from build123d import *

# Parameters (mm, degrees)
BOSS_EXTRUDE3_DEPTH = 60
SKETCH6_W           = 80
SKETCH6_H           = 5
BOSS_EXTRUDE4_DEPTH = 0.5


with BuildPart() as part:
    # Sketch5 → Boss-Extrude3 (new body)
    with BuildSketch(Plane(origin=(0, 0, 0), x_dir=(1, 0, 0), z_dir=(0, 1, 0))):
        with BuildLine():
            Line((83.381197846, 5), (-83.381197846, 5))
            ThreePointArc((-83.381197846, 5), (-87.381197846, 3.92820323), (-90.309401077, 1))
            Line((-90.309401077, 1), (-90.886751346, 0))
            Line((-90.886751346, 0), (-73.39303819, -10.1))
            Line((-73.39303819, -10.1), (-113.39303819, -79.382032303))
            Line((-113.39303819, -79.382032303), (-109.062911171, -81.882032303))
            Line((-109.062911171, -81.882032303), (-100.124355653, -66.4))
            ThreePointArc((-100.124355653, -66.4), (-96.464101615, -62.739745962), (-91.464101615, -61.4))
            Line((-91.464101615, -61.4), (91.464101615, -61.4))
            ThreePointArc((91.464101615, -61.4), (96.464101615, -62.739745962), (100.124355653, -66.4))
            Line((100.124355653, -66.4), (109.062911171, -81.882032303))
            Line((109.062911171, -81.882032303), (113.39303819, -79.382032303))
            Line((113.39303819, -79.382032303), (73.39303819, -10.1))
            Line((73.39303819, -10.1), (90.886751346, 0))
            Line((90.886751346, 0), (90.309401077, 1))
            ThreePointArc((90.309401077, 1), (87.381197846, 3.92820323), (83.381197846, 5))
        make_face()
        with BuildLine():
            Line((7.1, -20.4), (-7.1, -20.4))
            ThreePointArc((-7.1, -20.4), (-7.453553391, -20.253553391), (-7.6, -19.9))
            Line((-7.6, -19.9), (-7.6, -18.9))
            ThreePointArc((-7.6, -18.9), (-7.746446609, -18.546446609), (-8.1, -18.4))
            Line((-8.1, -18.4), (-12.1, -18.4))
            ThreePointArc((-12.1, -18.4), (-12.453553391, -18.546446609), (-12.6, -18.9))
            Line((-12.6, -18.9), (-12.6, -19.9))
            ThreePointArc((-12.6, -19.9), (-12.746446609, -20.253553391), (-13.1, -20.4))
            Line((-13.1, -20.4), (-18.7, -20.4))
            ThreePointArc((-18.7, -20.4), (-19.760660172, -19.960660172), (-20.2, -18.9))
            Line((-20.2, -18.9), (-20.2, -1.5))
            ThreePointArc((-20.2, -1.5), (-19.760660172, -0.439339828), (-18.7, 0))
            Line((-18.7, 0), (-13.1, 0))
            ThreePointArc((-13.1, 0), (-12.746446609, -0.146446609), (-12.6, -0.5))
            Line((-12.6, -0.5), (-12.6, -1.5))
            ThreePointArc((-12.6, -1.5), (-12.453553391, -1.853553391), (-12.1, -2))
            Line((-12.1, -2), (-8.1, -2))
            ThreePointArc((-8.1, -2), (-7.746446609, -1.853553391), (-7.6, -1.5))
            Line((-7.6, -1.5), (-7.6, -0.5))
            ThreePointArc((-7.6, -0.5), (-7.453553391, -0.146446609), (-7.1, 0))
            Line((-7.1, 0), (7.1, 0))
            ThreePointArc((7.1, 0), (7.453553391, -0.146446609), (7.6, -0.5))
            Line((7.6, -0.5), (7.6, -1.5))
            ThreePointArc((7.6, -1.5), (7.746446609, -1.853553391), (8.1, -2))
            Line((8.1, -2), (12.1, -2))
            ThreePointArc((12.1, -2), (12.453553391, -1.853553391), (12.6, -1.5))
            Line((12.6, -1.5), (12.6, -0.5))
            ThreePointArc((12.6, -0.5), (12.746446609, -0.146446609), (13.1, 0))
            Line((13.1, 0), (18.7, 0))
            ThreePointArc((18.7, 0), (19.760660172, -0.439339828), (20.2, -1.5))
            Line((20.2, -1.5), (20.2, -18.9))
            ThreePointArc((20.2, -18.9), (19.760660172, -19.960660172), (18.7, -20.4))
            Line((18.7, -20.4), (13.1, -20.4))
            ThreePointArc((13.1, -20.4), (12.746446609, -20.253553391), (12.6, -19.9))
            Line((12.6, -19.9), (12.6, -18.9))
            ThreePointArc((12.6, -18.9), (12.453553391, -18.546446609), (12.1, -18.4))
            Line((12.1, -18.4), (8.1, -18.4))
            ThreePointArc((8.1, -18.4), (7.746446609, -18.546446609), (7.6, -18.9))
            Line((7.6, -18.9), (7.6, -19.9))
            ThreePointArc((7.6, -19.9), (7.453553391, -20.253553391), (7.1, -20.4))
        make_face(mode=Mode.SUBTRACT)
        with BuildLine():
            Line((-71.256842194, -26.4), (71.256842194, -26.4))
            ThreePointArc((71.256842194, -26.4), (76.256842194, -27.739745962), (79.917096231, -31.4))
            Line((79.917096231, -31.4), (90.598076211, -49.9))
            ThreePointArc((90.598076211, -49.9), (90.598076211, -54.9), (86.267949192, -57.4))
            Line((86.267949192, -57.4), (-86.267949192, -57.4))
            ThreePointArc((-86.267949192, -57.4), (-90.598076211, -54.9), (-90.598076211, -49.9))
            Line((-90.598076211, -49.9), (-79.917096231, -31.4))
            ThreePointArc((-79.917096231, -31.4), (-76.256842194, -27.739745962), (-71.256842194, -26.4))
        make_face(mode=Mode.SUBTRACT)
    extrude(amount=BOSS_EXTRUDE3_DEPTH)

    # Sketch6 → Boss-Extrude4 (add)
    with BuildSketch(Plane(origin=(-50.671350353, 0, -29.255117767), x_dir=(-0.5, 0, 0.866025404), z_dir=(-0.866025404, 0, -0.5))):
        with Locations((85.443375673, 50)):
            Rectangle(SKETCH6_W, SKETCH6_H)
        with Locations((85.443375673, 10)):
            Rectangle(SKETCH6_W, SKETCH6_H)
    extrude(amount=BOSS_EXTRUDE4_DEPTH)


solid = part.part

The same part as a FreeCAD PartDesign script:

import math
import FreeCAD as App
import Part
import Sketcher

V = App.Vector
Q = App.Units.Quantity

doc = App.newDocument("Part")
body = doc.addObject("PartDesign::Body", "Body")

# Sketch on XZ plane
sketch1 = body.newObject("Sketcher::SketchObject", "Sketch")
sketch1.AttachmentSupport = (doc.getObject("XZ_Plane"), [""])
sketch1.MapMode = "FlatFace"
sketch1.addGeometry(Part.LineSegment(V(83.38, -5, 0), V(-83.38, -5, 0)), False)
sketch1.addGeometry(Part.ArcOfCircle(Part.Circle(V(-83.38, 3, 0), V(0, 0, 1), 8), math.radians(-150), math.radians(-90)), False)
sketch1.addGeometry(Part.LineSegment(V(-90.31, -1, 0), V(-90.89, 0, 0)), False)
sketch1.addGeometry(Part.LineSegment(V(-90.89, 0, 0), V(-73.39, 10.1, 0)), False)
sketch1.addGeometry(Part.LineSegment(V(-73.39, 10.1, 0), V(-113.39, 79.38, 0)), False)
sketch1.addGeometry(Part.LineSegment(V(-113.39, 79.38, 0), V(-109.06, 81.88, 0)), False)
sketch1.addGeometry(Part.LineSegment(V(-109.06, 81.88, 0), V(-100.12, 66.4, 0)), False)
sketch1.addGeometry(Part.ArcOfCircle(Part.Circle(V(-91.46, 71.4, 0), V(0, 0, 1), 10), math.radians(-150), math.radians(-90)), False)
sketch1.addGeometry(Part.LineSegment(V(-91.46, 61.4, 0), V(91.46, 61.4, 0)), False)
sketch1.addGeometry(Part.ArcOfCircle(Part.Circle(V(91.46, 71.4, 0), V(0, 0, 1), 10), math.radians(-90), math.radians(-30)), False)
sketch1.addGeometry(Part.LineSegment(V(100.12, 66.4, 0), V(109.06, 81.88, 0)), False)
sketch1.addGeometry(Part.LineSegment(V(109.06, 81.88, 0), V(113.39, 79.38, 0)), False)
sketch1.addGeometry(Part.LineSegment(V(113.39, 79.38, 0), V(73.39, 10.1, 0)), False)
sketch1.addGeometry(Part.LineSegment(V(73.39, 10.1, 0), V(90.89, 0, 0)), False)
sketch1.addGeometry(Part.LineSegment(V(90.89, 0, 0), V(90.31, -1, 0)), False)
sketch1.addGeometry(Part.ArcOfCircle(Part.Circle(V(83.38, 3, 0), V(0, 0, 1), 8), math.radians(-90), math.radians(-30)), False)
sketch1.addGeometry(Part.ArcOfCircle(Part.Circle(V(-71.26, 36.4, 0), V(0, 0, 1), 10), math.radians(-150), math.radians(-90)), False)
sketch1.addGeometry(Part.LineSegment(V(-71.26, 26.4, 0), V(71.26, 26.4, 0)), False)
sketch1.addGeometry(Part.ArcOfCircle(Part.Circle(V(71.26, 36.4, 0), V(0, 0, 1), 10), math.radians(-90), math.radians(-30)), False)
sketch1.addGeometry(Part.LineSegment(V(79.92, 31.4, 0), V(90.6, 49.9, 0)), False)
sketch1.addGeometry(Part.ArcOfCircle(Part.Circle(V(86.27, 52.4, 0), V(0, 0, 1), 5), math.radians(-30), math.radians(90)), False)
sketch1.addGeometry(Part.LineSegment(V(86.27, 57.4, 0), V(-86.27, 57.4, 0)), False)
sketch1.addGeometry(Part.ArcOfCircle(Part.Circle(V(-86.27, 52.4, 0), V(0, 0, 1), 5), math.radians(90), math.radians(210)), False)
sketch1.addGeometry(Part.LineSegment(V(-90.6, 49.9, 0), V(-79.92, 31.4, 0)), False)
sketch1.addGeometry(Part.ArcOfCircle(Part.Circle(V(7.1, 19.9, 0), V(0, 0, 1), 0.5), math.radians(0), math.radians(90)), False)
sketch1.addGeometry(Part.LineSegment(V(7.1, 20.4, 0), V(-7.1, 20.4, 0)), False)
sketch1.addGeometry(Part.ArcOfCircle(Part.Circle(V(-7.1, 19.9, 0), V(0, 0, 1), 0.5), math.radians(90), math.radians(180)), False)
sketch1.addGeometry(Part.LineSegment(V(-7.6, 19.9, 0), V(-7.6, 18.9, 0)), False)
sketch1.addGeometry(Part.ArcOfCircle(Part.Circle(V(-8.1, 18.9, 0), V(0, 0, 1), 0.5), math.radians(-90), math.radians(0)), False)
sketch1.addGeometry(Part.LineSegment(V(-8.1, 18.4, 0), V(-12.1, 18.4, 0)), False)
sketch1.addGeometry(Part.ArcOfCircle(Part.Circle(V(-12.1, 18.9, 0), V(0, 0, 1), 0.5), math.radians(180), math.radians(270)), False)
sketch1.addGeometry(Part.LineSegment(V(-12.6, 18.9, 0), V(-12.6, 19.9, 0)), False)
sketch1.addGeometry(Part.ArcOfCircle(Part.Circle(V(-13.1, 19.9, 0), V(0, 0, 1), 0.5), math.radians(0), math.radians(90)), False)
sketch1.addGeometry(Part.LineSegment(V(-13.1, 20.4, 0), V(-18.7, 20.4, 0)), False)
sketch1.addGeometry(Part.ArcOfCircle(Part.Circle(V(-18.7, 18.9, 0), V(0, 0, 1), 1.5), math.radians(90), math.radians(180)), False)
sketch1.addGeometry(Part.LineSegment(V(-20.2, 18.9, 0), V(-20.2, 1.5, 0)), False)
sketch1.addGeometry(Part.ArcOfCircle(Part.Circle(V(-18.7, 1.5, 0), V(0, 0, 1), 1.5), math.radians(180), math.radians(270)), False)
sketch1.addGeometry(Part.LineSegment(V(-18.7, 0, 0), V(-13.1, 0, 0)), False)
sketch1.addGeometry(Part.ArcOfCircle(Part.Circle(V(-13.1, 0.5, 0), V(0, 0, 1), 0.5), math.radians(-90), math.radians(0)), False)
sketch1.addGeometry(Part.LineSegment(V(-12.6, 0.5, 0), V(-12.6, 1.5, 0)), False)
sketch1.addGeometry(Part.ArcOfCircle(Part.Circle(V(-12.1, 1.5, 0), V(0, 0, 1), 0.5), math.radians(90), math.radians(180)), False)
sketch1.addGeometry(Part.LineSegment(V(-12.1, 2, 0), V(-8.1, 2, 0)), False)
sketch1.addGeometry(Part.ArcOfCircle(Part.Circle(V(-8.1, 1.5, 0), V(0, 0, 1), 0.5), math.radians(0), math.radians(90)), False)
sketch1.addGeometry(Part.LineSegment(V(-7.6, 1.5, 0), V(-7.6, 0.5, 0)), False)
sketch1.addGeometry(Part.ArcOfCircle(Part.Circle(V(-7.1, 0.5, 0), V(0, 0, 1), 0.5), math.radians(180), math.radians(270)), False)
sketch1.addGeometry(Part.LineSegment(V(-7.1, 0, 0), V(7.1, 0, 0)), False)
sketch1.addGeometry(Part.ArcOfCircle(Part.Circle(V(7.1, 0.5, 0), V(0, 0, 1), 0.5), math.radians(-90), math.radians(0)), False)
sketch1.addGeometry(Part.LineSegment(V(7.6, 0.5, 0), V(7.6, 1.5, 0)), False)
sketch1.addGeometry(Part.ArcOfCircle(Part.Circle(V(8.1, 1.5, 0), V(0, 0, 1), 0.5), math.radians(90), math.radians(180)), False)
sketch1.addGeometry(Part.LineSegment(V(8.1, 2, 0), V(12.1, 2, 0)), False)
sketch1.addGeometry(Part.ArcOfCircle(Part.Circle(V(12.1, 1.5, 0), V(0, 0, 1), 0.5), math.radians(0), math.radians(90)), False)
sketch1.addGeometry(Part.LineSegment(V(12.6, 1.5, 0), V(12.6, 0.5, 0)), False)
sketch1.addGeometry(Part.ArcOfCircle(Part.Circle(V(13.1, 0.5, 0), V(0, 0, 1), 0.5), math.radians(180), math.radians(270)), False)
sketch1.addGeometry(Part.LineSegment(V(13.1, 0, 0), V(18.7, 0, 0)), False)
sketch1.addGeometry(Part.ArcOfCircle(Part.Circle(V(18.7, 1.5, 0), V(0, 0, 1), 1.5), math.radians(-90), math.radians(0)), False)
sketch1.addGeometry(Part.LineSegment(V(20.2, 1.5, 0), V(20.2, 18.9, 0)), False)
sketch1.addGeometry(Part.ArcOfCircle(Part.Circle(V(18.7, 18.9, 0), V(0, 0, 1), 1.5), math.radians(0), math.radians(90)), False)
sketch1.addGeometry(Part.LineSegment(V(18.7, 20.4, 0), V(13.1, 20.4, 0)), False)
sketch1.addGeometry(Part.ArcOfCircle(Part.Circle(V(13.1, 19.9, 0), V(0, 0, 1), 0.5), math.radians(90), math.radians(180)), False)
sketch1.addGeometry(Part.LineSegment(V(12.6, 19.9, 0), V(12.6, 18.9, 0)), False)
sketch1.addGeometry(Part.ArcOfCircle(Part.Circle(V(12.1, 18.9, 0), V(0, 0, 1), 0.5), math.radians(-90), math.radians(0)), False)
sketch1.addGeometry(Part.LineSegment(V(12.1, 18.4, 0), V(8.1, 18.4, 0)), False)
sketch1.addGeometry(Part.ArcOfCircle(Part.Circle(V(8.1, 18.9, 0), V(0, 0, 1), 0.5), math.radians(180), math.radians(270)), False)
sketch1.addGeometry(Part.LineSegment(V(7.6, 18.9, 0), V(7.6, 19.9, 0)), False)
sketch1.addConstraint(Sketcher.Constraint("Tangent", 0, 2, 1, 2))
sketch1.addConstraint(Sketcher.Constraint("Tangent", 1, 1, 2, 1))
sketch1.addConstraint(Sketcher.Constraint("Coincident", 2, 2, 3, 1))
sketch1.addConstraint(Sketcher.Constraint("Coincident", 3, 2, 4, 1))
sketch1.addConstraint(Sketcher.Constraint("Coincident", 4, 2, 5, 1))
sketch1.addConstraint(Sketcher.Constraint("Coincident", 5, 2, 6, 1))
sketch1.addConstraint(Sketcher.Constraint("Tangent", 6, 2, 7, 1))
sketch1.addConstraint(Sketcher.Constraint("Tangent", 7, 2, 8, 1))
sketch1.addConstraint(Sketcher.Constraint("Tangent", 8, 2, 9, 1))
sketch1.addConstraint(Sketcher.Constraint("Tangent", 9, 2, 10, 1))
sketch1.addConstraint(Sketcher.Constraint("Coincident", 10, 2, 11, 1))
sketch1.addConstraint(Sketcher.Constraint("Coincident", 11, 2, 12, 1))
sketch1.addConstraint(Sketcher.Constraint("Coincident", 12, 2, 13, 1))
sketch1.addConstraint(Sketcher.Constraint("Coincident", 13, 2, 14, 1))
sketch1.addConstraint(Sketcher.Constraint("Tangent", 14, 2, 15, 2))
sketch1.addConstraint(Sketcher.Constraint("Tangent", 15, 1, 0, 1))
sketch1.addConstraint(Sketcher.Constraint("Tangent", 16, 2, 17, 1))
sketch1.addConstraint(Sketcher.Constraint("Tangent", 17, 2, 18, 1))
sketch1.addConstraint(Sketcher.Constraint("Tangent", 18, 2, 19, 1))
sketch1.addConstraint(Sketcher.Constraint("Tangent", 19, 2, 20, 1))
sketch1.addConstraint(Sketcher.Constraint("Tangent", 20, 2, 21, 1))
sketch1.addConstraint(Sketcher.Constraint("Tangent", 21, 2, 22, 1))
sketch1.addConstraint(Sketcher.Constraint("Tangent", 22, 2, 23, 1))
sketch1.addConstraint(Sketcher.Constraint("Tangent", 23, 2, 16, 1))
sketch1.addConstraint(Sketcher.Constraint("Tangent", 24, 2, 25, 1))
sketch1.addConstraint(Sketcher.Constraint("Tangent", 25, 2, 26, 1))
sketch1.addConstraint(Sketcher.Constraint("Tangent", 26, 2, 27, 1))
sketch1.addConstraint(Sketcher.Constraint("Tangent", 27, 2, 28, 2))
sketch1.addConstraint(Sketcher.Constraint("Tangent", 28, 1, 29, 1))
sketch1.addConstraint(Sketcher.Constraint("Tangent", 29, 2, 30, 2))
sketch1.addConstraint(Sketcher.Constraint("Tangent", 30, 1, 31, 1))
sketch1.addConstraint(Sketcher.Constraint("Tangent", 31, 2, 32, 1))
sketch1.addConstraint(Sketcher.Constraint("Tangent", 32, 2, 33, 1))
sketch1.addConstraint(Sketcher.Constraint("Tangent", 33, 2, 34, 1))
sketch1.addConstraint(Sketcher.Constraint("Tangent", 34, 2, 35, 1))
sketch1.addConstraint(Sketcher.Constraint("Tangent", 35, 2, 36, 1))
sketch1.addConstraint(Sketcher.Constraint("Tangent", 36, 2, 37, 1))
sketch1.addConstraint(Sketcher.Constraint("Tangent", 37, 2, 38, 1))
sketch1.addConstraint(Sketcher.Constraint("Tangent", 38, 2, 39, 1))
sketch1.addConstraint(Sketcher.Constraint("Tangent", 39, 2, 40, 2))
sketch1.addConstraint(Sketcher.Constraint("Tangent", 40, 1, 41, 1))
sketch1.addConstraint(Sketcher.Constraint("Tangent", 41, 2, 42, 2))
sketch1.addConstraint(Sketcher.Constraint("Tangent", 42, 1, 43, 1))
sketch1.addConstraint(Sketcher.Constraint("Tangent", 43, 2, 44, 1))
sketch1.addConstraint(Sketcher.Constraint("Tangent", 44, 2, 45, 1))
sketch1.addConstraint(Sketcher.Constraint("Tangent", 45, 2, 46, 1))
sketch1.addConstraint(Sketcher.Constraint("Tangent", 46, 2, 47, 1))
sketch1.addConstraint(Sketcher.Constraint("Tangent", 47, 2, 48, 2))
sketch1.addConstraint(Sketcher.Constraint("Tangent", 48, 1, 49, 1))
sketch1.addConstraint(Sketcher.Constraint("Tangent", 49, 2, 50, 2))
sketch1.addConstraint(Sketcher.Constraint("Tangent", 50, 1, 51, 1))
sketch1.addConstraint(Sketcher.Constraint("Tangent", 51, 2, 52, 1))
sketch1.addConstraint(Sketcher.Constraint("Tangent", 52, 2, 53, 1))
sketch1.addConstraint(Sketcher.Constraint("Tangent", 53, 2, 54, 1))
sketch1.addConstraint(Sketcher.Constraint("Tangent", 54, 2, 55, 1))
sketch1.addConstraint(Sketcher.Constraint("Tangent", 55, 2, 56, 1))
sketch1.addConstraint(Sketcher.Constraint("Tangent", 56, 2, 57, 1))
sketch1.addConstraint(Sketcher.Constraint("Tangent", 57, 2, 58, 1))
sketch1.addConstraint(Sketcher.Constraint("Tangent", 58, 2, 59, 1))
sketch1.addConstraint(Sketcher.Constraint("Tangent", 59, 2, 60, 2))
sketch1.addConstraint(Sketcher.Constraint("Tangent", 60, 1, 61, 1))
sketch1.addConstraint(Sketcher.Constraint("Tangent", 61, 2, 62, 2))
sketch1.addConstraint(Sketcher.Constraint("Tangent", 62, 1, 63, 1))
sketch1.addConstraint(Sketcher.Constraint("Tangent", 63, 2, 24, 1))
sketch1.addConstraint(Sketcher.Constraint("Horizontal", 0))
sketch1.addConstraint(Sketcher.Constraint("Horizontal", 8))
sketch1.addConstraint(Sketcher.Constraint("Horizontal", 17))
sketch1.addConstraint(Sketcher.Constraint("Horizontal", 21))
sketch1.addConstraint(Sketcher.Constraint("Horizontal", 25))
sketch1.addConstraint(Sketcher.Constraint("Vertical", 27))
sketch1.addConstraint(Sketcher.Constraint("Horizontal", 29))
sketch1.addConstraint(Sketcher.Constraint("Vertical", 31))
sketch1.addConstraint(Sketcher.Constraint("Horizontal", 33))
sketch1.addConstraint(Sketcher.Constraint("Vertical", 35))
sketch1.addConstraint(Sketcher.Constraint("Horizontal", 37))
sketch1.addConstraint(Sketcher.Constraint("Vertical", 39))
sketch1.addConstraint(Sketcher.Constraint("Horizontal", 41))
sketch1.addConstraint(Sketcher.Constraint("Vertical", 43))
sketch1.addConstraint(Sketcher.Constraint("Horizontal", 45))
sketch1.addConstraint(Sketcher.Constraint("Vertical", 47))
sketch1.addConstraint(Sketcher.Constraint("Horizontal", 49))
sketch1.addConstraint(Sketcher.Constraint("Vertical", 51))
sketch1.addConstraint(Sketcher.Constraint("Horizontal", 53))
sketch1.addConstraint(Sketcher.Constraint("Vertical", 55))
sketch1.addConstraint(Sketcher.Constraint("Horizontal", 57))
sketch1.addConstraint(Sketcher.Constraint("Vertical", 59))
sketch1.addConstraint(Sketcher.Constraint("Horizontal", 61))
sketch1.addConstraint(Sketcher.Constraint("Vertical", 63))
sketch1.addConstraint(Sketcher.Constraint("Equal", 7, 9))
sketch1.addConstraint(Sketcher.Constraint("Equal", 1, 15))
sketch1.addConstraint(Sketcher.Constraint("Equal", 9, 16))
sketch1.addConstraint(Sketcher.Constraint("Equal", 16, 18))
sketch1.addConstraint(Sketcher.Constraint("Equal", 20, 22))
sketch1.addConstraint(Sketcher.Constraint("Equal", 24, 26))
sketch1.addConstraint(Sketcher.Constraint("Equal", 26, 28))
sketch1.addConstraint(Sketcher.Constraint("Equal", 28, 30))
sketch1.addConstraint(Sketcher.Constraint("Equal", 30, 32))
sketch1.addConstraint(Sketcher.Constraint("Equal", 34, 36))
sketch1.addConstraint(Sketcher.Constraint("Equal", 32, 38))
sketch1.addConstraint(Sketcher.Constraint("Equal", 38, 40))
sketch1.addConstraint(Sketcher.Constraint("Equal", 40, 42))
sketch1.addConstraint(Sketcher.Constraint("Equal", 42, 44))
sketch1.addConstraint(Sketcher.Constraint("Equal", 44, 46))
sketch1.addConstraint(Sketcher.Constraint("Equal", 46, 48))
sketch1.addConstraint(Sketcher.Constraint("Equal", 48, 50))
sketch1.addConstraint(Sketcher.Constraint("Equal", 50, 52))
sketch1.addConstraint(Sketcher.Constraint("Equal", 36, 54))
sketch1.addConstraint(Sketcher.Constraint("Equal", 54, 56))
sketch1.addConstraint(Sketcher.Constraint("Equal", 52, 58))
sketch1.addConstraint(Sketcher.Constraint("Equal", 58, 60))
sketch1.addConstraint(Sketcher.Constraint("Equal", 60, 62))
sketch1.addConstraint(Sketcher.Constraint("Symmetric", 2, 2, 13, 2, -1, 1))
sketch1.addConstraint(Sketcher.Constraint("Symmetric", 44, 2, 45, 2, -1, 1))
sketch1.addConstraint(Sketcher.Constraint("Symmetric", 37, 2, 52, 2, -1, 1))
sketch1.addConstraint(Sketcher.Constraint("Symmetric", 36, 3, 54, 3, -2))
sketch1.addConstraint(Sketcher.Constraint("Symmetric", 32, 3, 58, 3, -2))
sketch1.addConstraint(Sketcher.Constraint("Symmetric", 28, 3, 62, 3, -2))
sketch1.addConstraint(Sketcher.Constraint("Symmetric", 6, 2, 9, 2, -2))
sketch1.addConstraint(Sketcher.Constraint("Symmetric", 4, 2, 11, 2, -2))
sketch1.addConstraint(Sketcher.Constraint("Symmetric", 3, 2, 12, 2, -2))
sketch1.addConstraint(Sketcher.Constraint("Symmetric", 1, 1, 14, 2, -2))
sketch1.addConstraint(Sketcher.Constraint("Symmetric", 19, 2, 22, 2, -2))
sketch1.addConstraint(Sketcher.Constraint("Perpendicular", 2, 3))
sketch1.addConstraint(Sketcher.Constraint("Perpendicular", 3, 4))
sketch1.addConstraint(Sketcher.Constraint("Perpendicular", 4, 5))
sketch1.addConstraint(Sketcher.Constraint("Perpendicular", 5, 6))
sketch1.addConstraint(Sketcher.Constraint("Perpendicular", 10, 11))
sketch1.addConstraint(Sketcher.Constraint("Parallel", 14, 19))
sketch1.addConstraint(Sketcher.Constraint("Horizontal", 26, 3, 32, 3))
sketch1.addConstraint(Sketcher.Constraint("Horizontal", 30, 3, 34, 3))
sketch1.addConstraint(Sketcher.Constraint("Horizontal", 36, 3, 40, 3))
sketch1.addConstraint(Sketcher.Constraint("Horizontal", 42, 3, 48, 3))
sketch1.addConstraint(Sketcher.Constraint("Vertical", 32, 3, 38, 3))
sketch1.addConstraint(Sketcher.Constraint("Vertical", 28, 3, 42, 3))
sketch1.addConstraint(Sketcher.Constraint("Radius", 1, 8.0))
sketch1.addConstraint(Sketcher.Constraint("Radius", 7, 10.0))
sketch1.addConstraint(Sketcher.Constraint("Radius", 20, 5.0))
sketch1.addConstraint(Sketcher.Constraint("Radius", 24, 0.5))
sketch1.addConstraint(Sketcher.Constraint("Radius", 34, 1.5))
sketch1.addConstraint(Sketcher.Constraint("DistanceX", 29, 2, 29, 1, 4.0))
sketch1.addConstraint(Sketcher.Constraint("Angle", 2, Q("120 deg")))
sketch1.addConstraint(Sketcher.Constraint("Distance", 4, 80.0))
sketch1.addConstraint(Sketcher.Constraint("Distance", 5, 5.0))
sketch1.addConstraint(Sketcher.Constraint("DistanceX", 25, 2, 25, 1, 14.2))
sketch1.addConstraint(Sketcher.Constraint("DistanceX", 33, 2, 33, 1, 5.6))
sketch1.addConstraint(Sketcher.Constraint("DistanceY", 35, 2, 35, 1, 17.4))
sketch1.addConstraint(Sketcher.Constraint("DistanceY", -1, 1, 1, 3, 3.0))
sketch1.addConstraint(Sketcher.Constraint("Distance", 3, 20.2))
sketch1.addConstraint(Sketcher.Constraint("DistanceY", -1, 1, 7, 3, 71.4))
sketch1.addConstraint(Sketcher.Constraint("DistanceY", -1, 1, 16, 3, 36.4))
sketch1.addConstraint(Sketcher.Constraint("DistanceY", -1, 1, 20, 3, 52.4))
sketch1.addConstraint(Sketcher.Constraint("DistanceX", 21, 2, 21, 1, 172.535898))
sketch1.addConstraint(Sketcher.Constraint("DistanceX", 7, 3, -1, 1, 91.464102))
pad1 = body.newObject("PartDesign::Pad", "Pad")
pad1.Profile = sketch1
pad1.Length = 60
pad1.Reversed = True

# Sketch on an angled plane
sketch2 = body.newObject("Sketcher::SketchObject", "Sketch001")
sketch2.Placement = App.Placement(V(-50.67135, 0, -29.255118), App.Rotation(V(-0.5, 0, 0.866025404), V(0, 1, 0), V(-0.866025404, 0, -0.5), "ZXY"))
sketch2.addGeometry(Part.LineSegment(V(45, 53, 0), V(45, 48, 0)), False)
sketch2.addGeometry(Part.LineSegment(V(45, 48, 0), V(125, 48, 0)), False)
sketch2.addGeometry(Part.LineSegment(V(125, 48, 0), V(125, 53, 0)), False)
sketch2.addGeometry(Part.LineSegment(V(125, 53, 0), V(45, 53, 0)), False)
sketch2.addGeometry(Part.LineSegment(V(45, 13, 0), V(45, 8, 0)), False)
sketch2.addGeometry(Part.LineSegment(V(45, 8, 0), V(125, 8, 0)), False)
sketch2.addGeometry(Part.LineSegment(V(125, 8, 0), V(125, 13, 0)), False)
sketch2.addGeometry(Part.LineSegment(V(125, 13, 0), V(45, 13, 0)), False)
sketch2.addConstraint(Sketcher.Constraint("Coincident", 0, 2, 1, 1))
sketch2.addConstraint(Sketcher.Constraint("Coincident", 1, 2, 2, 1))
sketch2.addConstraint(Sketcher.Constraint("Coincident", 2, 2, 3, 1))
sketch2.addConstraint(Sketcher.Constraint("Coincident", 3, 2, 0, 1))
sketch2.addConstraint(Sketcher.Constraint("Coincident", 4, 2, 5, 1))
sketch2.addConstraint(Sketcher.Constraint("Coincident", 5, 2, 6, 1))
sketch2.addConstraint(Sketcher.Constraint("Coincident", 6, 2, 7, 1))
sketch2.addConstraint(Sketcher.Constraint("Coincident", 7, 2, 4, 1))
sketch2.addConstraint(Sketcher.Constraint("Vertical", 0))
sketch2.addConstraint(Sketcher.Constraint("Horizontal", 1))
sketch2.addConstraint(Sketcher.Constraint("Vertical", 2))
sketch2.addConstraint(Sketcher.Constraint("Horizontal", 3))
sketch2.addConstraint(Sketcher.Constraint("Vertical", 4))
sketch2.addConstraint(Sketcher.Constraint("Horizontal", 5))
sketch2.addConstraint(Sketcher.Constraint("Vertical", 6))
sketch2.addConstraint(Sketcher.Constraint("Horizontal", 7))
sketch2.addConstraint(Sketcher.Constraint("Vertical", 3, 2, 4, 2))
sketch2.addConstraint(Sketcher.Constraint("Vertical", 2, 2, 5, 2))
sketch2.addConstraint(Sketcher.Constraint("Equal", 2, 4))
sketch2.addConstraint(Sketcher.Constraint("DistanceX", 1, 1, 1, 2, 80.0))
sketch2.addConstraint(Sketcher.Constraint("DistanceY", 0, 2, 0, 1, 5.0))
sketch2.addConstraint(Sketcher.Constraint("DistanceY", 4, 2, 0, 2, 40.0))
sketch2.addConstraint(Sketcher.Constraint("DistanceY", -1, 1, 0, 2, 47.5))
sketch2.addConstraint(Sketcher.Constraint("DistanceX", -1, 1, 0, 2, 45.443376))
pad2 = body.newObject("PartDesign::Pad", "Pad001")
pad2.Profile = sketch2
pad2.Length = 0.5

doc.recompute()
